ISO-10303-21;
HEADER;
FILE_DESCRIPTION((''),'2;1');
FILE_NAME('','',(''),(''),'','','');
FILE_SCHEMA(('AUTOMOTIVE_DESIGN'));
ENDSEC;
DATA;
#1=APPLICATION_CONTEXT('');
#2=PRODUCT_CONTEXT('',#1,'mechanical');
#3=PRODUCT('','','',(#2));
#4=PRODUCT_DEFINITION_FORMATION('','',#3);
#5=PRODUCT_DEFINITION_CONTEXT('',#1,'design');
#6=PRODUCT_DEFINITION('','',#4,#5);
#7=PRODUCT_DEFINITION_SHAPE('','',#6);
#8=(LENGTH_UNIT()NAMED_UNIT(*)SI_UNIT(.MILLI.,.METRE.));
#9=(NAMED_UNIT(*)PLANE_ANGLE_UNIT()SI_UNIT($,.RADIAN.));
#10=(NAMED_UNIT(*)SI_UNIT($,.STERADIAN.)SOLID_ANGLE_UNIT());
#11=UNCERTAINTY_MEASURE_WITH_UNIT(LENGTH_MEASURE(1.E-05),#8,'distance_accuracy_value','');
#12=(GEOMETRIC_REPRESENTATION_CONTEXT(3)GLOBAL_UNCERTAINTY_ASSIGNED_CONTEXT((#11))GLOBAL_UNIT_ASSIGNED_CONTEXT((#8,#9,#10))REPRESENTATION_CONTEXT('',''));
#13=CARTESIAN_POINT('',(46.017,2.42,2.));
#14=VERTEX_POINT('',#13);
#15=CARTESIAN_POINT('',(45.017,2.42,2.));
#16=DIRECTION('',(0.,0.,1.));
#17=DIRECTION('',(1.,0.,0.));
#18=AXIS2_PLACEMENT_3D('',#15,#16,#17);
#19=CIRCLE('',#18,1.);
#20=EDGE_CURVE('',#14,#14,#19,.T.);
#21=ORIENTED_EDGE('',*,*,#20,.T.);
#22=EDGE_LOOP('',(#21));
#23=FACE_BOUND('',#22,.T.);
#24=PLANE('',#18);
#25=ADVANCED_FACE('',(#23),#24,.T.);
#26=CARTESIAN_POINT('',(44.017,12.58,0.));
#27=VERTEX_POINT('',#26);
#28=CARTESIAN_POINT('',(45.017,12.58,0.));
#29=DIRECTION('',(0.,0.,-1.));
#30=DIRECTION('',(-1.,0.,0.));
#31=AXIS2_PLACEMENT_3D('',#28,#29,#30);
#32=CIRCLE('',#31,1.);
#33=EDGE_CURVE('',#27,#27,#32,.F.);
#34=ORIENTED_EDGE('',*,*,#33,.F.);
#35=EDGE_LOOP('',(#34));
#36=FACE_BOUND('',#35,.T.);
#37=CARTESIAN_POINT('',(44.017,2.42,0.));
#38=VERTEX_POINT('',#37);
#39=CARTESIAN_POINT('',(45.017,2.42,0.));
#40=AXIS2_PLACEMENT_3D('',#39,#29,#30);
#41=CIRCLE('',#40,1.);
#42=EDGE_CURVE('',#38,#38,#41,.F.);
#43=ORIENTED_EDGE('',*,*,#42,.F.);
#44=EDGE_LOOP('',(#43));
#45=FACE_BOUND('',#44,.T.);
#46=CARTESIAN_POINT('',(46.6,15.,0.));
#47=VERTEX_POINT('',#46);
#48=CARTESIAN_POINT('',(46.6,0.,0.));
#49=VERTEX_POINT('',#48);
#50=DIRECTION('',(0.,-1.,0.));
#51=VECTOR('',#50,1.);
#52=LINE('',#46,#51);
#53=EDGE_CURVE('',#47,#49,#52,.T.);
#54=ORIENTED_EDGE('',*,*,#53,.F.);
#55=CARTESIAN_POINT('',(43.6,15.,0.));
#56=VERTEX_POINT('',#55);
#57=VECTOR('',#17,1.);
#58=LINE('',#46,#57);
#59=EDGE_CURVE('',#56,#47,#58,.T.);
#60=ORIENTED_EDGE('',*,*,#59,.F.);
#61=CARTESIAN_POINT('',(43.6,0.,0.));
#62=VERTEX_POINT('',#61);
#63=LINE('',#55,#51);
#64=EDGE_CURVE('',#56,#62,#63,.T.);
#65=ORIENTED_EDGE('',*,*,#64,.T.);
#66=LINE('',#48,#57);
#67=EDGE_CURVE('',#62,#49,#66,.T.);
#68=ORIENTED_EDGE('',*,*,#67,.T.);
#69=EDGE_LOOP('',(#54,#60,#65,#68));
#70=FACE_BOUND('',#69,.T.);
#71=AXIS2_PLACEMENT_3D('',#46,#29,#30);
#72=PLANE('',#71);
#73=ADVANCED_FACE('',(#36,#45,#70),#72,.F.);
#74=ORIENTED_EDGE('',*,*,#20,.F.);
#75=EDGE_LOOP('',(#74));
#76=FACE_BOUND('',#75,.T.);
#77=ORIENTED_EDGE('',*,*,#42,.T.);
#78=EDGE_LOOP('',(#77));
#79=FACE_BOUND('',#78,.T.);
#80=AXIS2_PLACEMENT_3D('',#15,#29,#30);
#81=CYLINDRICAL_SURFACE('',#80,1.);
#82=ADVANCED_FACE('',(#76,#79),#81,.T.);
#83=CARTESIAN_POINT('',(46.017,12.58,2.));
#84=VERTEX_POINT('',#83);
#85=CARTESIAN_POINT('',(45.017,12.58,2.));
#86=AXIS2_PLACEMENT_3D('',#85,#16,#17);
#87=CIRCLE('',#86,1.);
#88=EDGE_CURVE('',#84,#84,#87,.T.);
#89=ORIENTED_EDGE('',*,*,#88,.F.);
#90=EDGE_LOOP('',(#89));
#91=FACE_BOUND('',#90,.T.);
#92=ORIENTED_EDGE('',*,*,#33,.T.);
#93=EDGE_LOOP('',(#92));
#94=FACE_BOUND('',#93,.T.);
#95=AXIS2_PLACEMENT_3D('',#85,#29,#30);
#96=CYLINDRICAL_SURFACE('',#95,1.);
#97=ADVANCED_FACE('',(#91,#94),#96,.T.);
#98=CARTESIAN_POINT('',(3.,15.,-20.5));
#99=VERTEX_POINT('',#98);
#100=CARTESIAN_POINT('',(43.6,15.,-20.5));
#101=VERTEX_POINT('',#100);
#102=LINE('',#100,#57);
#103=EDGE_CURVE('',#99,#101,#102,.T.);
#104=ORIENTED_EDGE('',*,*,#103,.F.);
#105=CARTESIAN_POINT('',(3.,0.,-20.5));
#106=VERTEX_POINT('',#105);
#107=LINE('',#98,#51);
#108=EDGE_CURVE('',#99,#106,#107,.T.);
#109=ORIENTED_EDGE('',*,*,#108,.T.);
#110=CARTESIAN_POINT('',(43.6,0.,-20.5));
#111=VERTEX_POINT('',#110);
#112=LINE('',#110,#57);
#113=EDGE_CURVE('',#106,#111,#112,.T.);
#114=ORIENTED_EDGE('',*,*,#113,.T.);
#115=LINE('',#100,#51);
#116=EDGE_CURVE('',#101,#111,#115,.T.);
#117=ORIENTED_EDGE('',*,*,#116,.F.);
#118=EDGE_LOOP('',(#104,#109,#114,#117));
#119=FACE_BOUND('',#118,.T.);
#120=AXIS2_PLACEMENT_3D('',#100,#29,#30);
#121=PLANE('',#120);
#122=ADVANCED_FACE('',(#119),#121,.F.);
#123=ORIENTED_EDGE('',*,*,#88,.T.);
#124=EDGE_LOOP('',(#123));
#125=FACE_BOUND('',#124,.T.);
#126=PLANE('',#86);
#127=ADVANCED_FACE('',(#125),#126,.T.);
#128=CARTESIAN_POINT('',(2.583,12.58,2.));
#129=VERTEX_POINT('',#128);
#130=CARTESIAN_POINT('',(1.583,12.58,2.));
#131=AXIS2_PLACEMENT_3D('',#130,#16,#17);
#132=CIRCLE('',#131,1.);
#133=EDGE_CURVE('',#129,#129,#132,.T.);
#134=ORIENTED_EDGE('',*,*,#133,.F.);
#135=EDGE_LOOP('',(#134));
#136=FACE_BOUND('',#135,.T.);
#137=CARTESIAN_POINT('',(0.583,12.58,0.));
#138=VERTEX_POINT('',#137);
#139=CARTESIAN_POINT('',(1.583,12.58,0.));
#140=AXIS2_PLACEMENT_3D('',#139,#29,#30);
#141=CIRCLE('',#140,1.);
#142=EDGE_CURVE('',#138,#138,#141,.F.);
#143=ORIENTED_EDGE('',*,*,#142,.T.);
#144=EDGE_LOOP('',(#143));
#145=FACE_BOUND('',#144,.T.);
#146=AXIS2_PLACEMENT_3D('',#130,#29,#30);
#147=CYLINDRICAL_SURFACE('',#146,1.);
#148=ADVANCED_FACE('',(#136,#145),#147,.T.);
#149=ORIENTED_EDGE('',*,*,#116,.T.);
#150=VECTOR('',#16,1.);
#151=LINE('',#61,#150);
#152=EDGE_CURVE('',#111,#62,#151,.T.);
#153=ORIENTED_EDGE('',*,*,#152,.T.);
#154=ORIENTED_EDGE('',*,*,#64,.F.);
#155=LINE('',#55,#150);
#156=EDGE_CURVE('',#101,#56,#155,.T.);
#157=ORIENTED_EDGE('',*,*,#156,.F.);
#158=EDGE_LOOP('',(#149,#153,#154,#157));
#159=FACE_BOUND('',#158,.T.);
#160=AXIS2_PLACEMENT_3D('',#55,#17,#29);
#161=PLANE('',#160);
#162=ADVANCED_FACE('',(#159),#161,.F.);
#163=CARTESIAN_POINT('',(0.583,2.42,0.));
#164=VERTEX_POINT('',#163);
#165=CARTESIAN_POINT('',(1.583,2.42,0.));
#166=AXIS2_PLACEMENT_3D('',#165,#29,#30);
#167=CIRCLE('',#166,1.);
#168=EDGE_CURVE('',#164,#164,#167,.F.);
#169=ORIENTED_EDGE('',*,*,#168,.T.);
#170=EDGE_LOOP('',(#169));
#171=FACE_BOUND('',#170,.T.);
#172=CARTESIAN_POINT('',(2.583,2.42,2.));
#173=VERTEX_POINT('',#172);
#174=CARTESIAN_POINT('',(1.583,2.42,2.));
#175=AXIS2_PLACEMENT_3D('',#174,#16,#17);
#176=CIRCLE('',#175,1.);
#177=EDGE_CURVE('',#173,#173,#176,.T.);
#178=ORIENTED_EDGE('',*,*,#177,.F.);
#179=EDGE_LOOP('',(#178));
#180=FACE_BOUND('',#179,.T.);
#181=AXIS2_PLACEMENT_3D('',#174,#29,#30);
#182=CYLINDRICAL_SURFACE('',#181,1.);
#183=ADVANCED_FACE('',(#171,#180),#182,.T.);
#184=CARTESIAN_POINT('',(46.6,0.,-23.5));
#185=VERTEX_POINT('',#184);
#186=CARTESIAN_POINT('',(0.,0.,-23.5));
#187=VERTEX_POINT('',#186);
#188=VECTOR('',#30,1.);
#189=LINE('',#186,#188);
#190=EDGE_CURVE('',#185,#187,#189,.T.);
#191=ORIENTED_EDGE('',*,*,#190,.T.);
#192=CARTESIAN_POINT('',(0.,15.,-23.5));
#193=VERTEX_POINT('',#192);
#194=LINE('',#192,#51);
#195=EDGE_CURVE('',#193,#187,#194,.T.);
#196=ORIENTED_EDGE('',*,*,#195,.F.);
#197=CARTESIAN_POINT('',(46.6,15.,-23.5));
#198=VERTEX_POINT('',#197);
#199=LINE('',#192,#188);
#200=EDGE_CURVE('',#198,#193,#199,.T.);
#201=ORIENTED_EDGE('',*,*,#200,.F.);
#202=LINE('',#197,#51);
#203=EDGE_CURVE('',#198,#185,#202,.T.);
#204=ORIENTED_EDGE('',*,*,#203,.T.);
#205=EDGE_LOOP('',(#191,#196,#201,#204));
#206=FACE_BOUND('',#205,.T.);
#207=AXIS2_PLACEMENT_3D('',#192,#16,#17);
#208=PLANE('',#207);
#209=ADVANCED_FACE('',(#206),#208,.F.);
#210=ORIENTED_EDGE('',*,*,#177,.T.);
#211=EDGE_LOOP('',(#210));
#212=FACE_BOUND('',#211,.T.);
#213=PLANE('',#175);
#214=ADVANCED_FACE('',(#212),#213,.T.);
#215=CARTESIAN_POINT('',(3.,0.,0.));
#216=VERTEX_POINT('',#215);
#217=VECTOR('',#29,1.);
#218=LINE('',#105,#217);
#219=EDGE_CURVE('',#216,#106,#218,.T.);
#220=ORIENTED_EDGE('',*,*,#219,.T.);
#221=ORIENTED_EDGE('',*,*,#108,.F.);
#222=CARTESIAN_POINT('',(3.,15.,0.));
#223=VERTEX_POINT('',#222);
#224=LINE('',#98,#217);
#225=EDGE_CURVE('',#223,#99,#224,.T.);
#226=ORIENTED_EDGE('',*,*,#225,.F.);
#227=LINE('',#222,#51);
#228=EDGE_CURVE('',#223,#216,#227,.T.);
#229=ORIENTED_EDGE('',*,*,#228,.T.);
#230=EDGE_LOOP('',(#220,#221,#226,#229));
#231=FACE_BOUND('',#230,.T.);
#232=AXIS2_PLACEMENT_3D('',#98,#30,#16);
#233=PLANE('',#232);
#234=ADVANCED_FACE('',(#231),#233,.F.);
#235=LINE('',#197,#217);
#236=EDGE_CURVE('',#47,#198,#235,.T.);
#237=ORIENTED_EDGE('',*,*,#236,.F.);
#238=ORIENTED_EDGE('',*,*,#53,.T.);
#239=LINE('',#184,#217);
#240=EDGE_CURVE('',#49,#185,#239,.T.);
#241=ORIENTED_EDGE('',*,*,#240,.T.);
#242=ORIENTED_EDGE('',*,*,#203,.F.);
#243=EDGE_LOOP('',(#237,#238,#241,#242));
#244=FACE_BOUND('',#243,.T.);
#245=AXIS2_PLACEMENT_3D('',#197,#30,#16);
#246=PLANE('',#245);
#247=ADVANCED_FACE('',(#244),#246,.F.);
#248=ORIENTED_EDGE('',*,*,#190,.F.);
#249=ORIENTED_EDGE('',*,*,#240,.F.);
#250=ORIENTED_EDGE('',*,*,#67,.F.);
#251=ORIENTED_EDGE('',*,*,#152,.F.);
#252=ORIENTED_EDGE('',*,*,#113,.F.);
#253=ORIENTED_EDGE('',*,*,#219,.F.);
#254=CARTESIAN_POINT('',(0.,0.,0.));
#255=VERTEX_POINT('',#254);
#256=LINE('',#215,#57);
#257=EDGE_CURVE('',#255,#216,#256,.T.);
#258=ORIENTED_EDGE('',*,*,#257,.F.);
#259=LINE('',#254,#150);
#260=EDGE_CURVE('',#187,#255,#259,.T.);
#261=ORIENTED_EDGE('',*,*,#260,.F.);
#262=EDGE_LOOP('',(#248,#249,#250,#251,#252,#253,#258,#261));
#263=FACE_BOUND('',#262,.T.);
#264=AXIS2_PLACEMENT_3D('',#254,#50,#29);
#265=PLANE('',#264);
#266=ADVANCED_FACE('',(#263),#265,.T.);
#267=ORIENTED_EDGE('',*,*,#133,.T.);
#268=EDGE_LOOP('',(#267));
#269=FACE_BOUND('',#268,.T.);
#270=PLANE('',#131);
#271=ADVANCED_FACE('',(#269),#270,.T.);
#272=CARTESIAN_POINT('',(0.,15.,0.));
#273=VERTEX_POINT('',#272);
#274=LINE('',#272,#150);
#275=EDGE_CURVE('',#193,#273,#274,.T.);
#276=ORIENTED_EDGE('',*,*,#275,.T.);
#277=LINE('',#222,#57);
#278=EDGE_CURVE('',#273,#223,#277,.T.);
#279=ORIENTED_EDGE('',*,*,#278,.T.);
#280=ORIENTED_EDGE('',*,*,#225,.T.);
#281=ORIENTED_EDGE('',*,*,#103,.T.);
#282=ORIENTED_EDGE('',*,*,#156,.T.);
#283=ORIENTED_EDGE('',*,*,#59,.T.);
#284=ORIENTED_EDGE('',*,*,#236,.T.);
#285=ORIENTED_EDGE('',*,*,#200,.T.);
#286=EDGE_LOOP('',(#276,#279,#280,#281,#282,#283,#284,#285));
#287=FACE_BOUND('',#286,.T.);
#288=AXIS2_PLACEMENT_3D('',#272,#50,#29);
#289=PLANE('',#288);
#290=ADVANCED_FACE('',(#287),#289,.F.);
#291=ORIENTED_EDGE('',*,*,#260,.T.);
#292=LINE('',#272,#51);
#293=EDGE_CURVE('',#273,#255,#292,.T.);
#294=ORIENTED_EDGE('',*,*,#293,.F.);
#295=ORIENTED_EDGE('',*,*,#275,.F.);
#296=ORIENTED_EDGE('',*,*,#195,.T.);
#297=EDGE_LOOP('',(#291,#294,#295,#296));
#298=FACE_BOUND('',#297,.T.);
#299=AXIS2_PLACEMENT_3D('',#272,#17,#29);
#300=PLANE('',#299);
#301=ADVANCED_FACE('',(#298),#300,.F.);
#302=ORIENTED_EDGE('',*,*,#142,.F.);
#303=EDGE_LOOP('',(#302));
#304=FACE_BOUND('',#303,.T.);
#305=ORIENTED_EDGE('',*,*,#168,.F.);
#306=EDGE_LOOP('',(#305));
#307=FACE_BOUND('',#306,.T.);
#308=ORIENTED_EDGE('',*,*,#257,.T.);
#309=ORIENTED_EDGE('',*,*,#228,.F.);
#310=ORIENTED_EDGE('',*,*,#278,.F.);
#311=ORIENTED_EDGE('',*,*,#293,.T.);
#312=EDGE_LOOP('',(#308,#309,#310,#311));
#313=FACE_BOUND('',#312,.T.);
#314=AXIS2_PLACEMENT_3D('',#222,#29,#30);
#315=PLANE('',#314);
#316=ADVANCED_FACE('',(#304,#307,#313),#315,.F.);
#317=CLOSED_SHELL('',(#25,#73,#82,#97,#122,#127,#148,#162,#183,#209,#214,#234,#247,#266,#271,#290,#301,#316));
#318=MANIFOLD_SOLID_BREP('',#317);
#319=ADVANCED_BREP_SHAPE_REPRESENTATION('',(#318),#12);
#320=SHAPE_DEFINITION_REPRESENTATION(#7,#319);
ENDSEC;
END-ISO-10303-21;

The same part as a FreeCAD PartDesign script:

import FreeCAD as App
import Part
import Sketcher
from FreeCAD import Vector

doc = App.newDocument("Part")
body = doc.addObject("PartDesign::Body", "Body")

sketch1 = body.newObject("Sketcher::SketchObject", "Sketch")
sketch1.AttachmentSupport = (doc.getObject("XZ_Plane"), [""])
sketch1.MapMode = "FlatFace"
sketch1.addGeometry([
    Part.LineSegment(Vector(0, -23.5, 0), Vector(0, 0, 0)),
    Part.LineSegment(Vector(0, 0, 0), Vector(3, 0, 0)),
    Part.LineSegment(Vector(3, 0, 0), Vector(3, -20.5, 0)),
    Part.LineSegment(Vector(3, -20.5, 0), Vector(43.6, -20.5, 0)),
    Part.LineSegment(Vector(43.6, -20.5, 0), Vector(43.6, 0, 0)),
    Part.LineSegment(Vector(43.6, 0, 0), Vector(46.6, 0, 0)),
    Part.LineSegment(Vector(46.6, 0, 0), Vector(46.6, -23.5, 0)),
    Part.LineSegment(Vector(46.6, -23.5, 0), Vector(0, -23.5, 0)),
], False)
sketch1.addConstraint([
    Sketcher.Constraint("Coincident", 0, 2, 1, 1),
    Sketcher.Constraint("Coincident", 1, 2, 2, 1),
    Sketcher.Constraint("Coincident", 2, 2, 3, 1),
    Sketcher.Constraint("Coincident", 3, 2, 4, 1),
    Sketcher.Constraint("Coincident", 4, 2, 5, 1),
    Sketcher.Constraint("Coincident", 5, 2, 6, 1),
    Sketcher.Constraint("Coincident", 6, 2, 7, 1),
    Sketcher.Constraint("Coincident", 7, 2, 0, 1),
    Sketcher.Constraint("Vertical", 0),
    Sketcher.Constraint("Horizontal", 1),
    Sketcher.Constraint("Vertical", 2),
    Sketcher.Constraint("Horizontal", 3),
    Sketcher.Constraint("Vertical", 4),
    Sketcher.Constraint("Horizontal", 5),
    Sketcher.Constraint("Vertical", 6),
    Sketcher.Constraint("Horizontal", 7),
    Sketcher.Constraint("Coincident", 0, 2, -1, 1),
    Sketcher.Constraint("PointOnObject", 4, 2, -1),
    Sketcher.Constraint("Equal", 1, 5),
    Sketcher.Constraint("DistanceX", 1, 1, 1, 2, 3.0),
    Sketcher.Constraint("DistanceX", 3, 1, 3, 2, 40.6),
    Sketcher.Constraint("DistanceY", 0, 1, 0, 2, 23.5),
    Sketcher.Constraint("DistanceY", 2, 2, 2, 1, 20.5),
])
pad1 = body.newObject("PartDesign::Pad", "Pad")
pad1.Profile = sketch1
pad1.Length = 15
pad1.Reversed = True

sketch2 = body.newObject("Sketcher::SketchObject", "Sketch001")
sketch2.AttachmentSupport = (doc.getObject("XY_Plane"), [""])
sketch2.MapMode = "FlatFace"
sketch2.addGeometry([
    Part.Circle(Vector(1.583, 2.42, 0), Vector(0, 0, 1), 1),
    Part.Circle(Vector(1.583, 12.58, 0), Vector(0, 0, 1), 1),
    Part.Circle(Vector(45.017, 12.58, 0), Vector(0, 0, 1), 1),
    Part.Circle(Vector(45.017, 2.42, 0), Vector(0, 0, 1), 1),
], False)
sketch2.addConstraint([
    Sketcher.Constraint("Equal", 0, 1),
    Sketcher.Constraint("Equal", 1, 2),
    Sketcher.Constraint("Equal", 2, 3),
    Sketcher.Constraint("Horizontal", 1, 3, 2, 3),
    Sketcher.Constraint("Horizontal", 0, 3, 3, 3),
    Sketcher.Constraint("Vertical", 0, 3, 1, 3),
    Sketcher.Constraint("Vertical", 2, 3, 3, 3),
    Sketcher.Constraint("Diameter", 0, 2.0),
    Sketcher.Constraint("DistanceY", -1, 1, 0, 3, 2.42),
    Sketcher.Constraint("DistanceY", -1, 1, 1, 3, 12.58),
    Sketcher.Constraint("DistanceX", -1, 1, 0, 3, 1.583),
    Sketcher.Constraint("DistanceX", -1, 1, 2, 3, 45.017),
])
pad2 = body.newObject("PartDesign::Pad", "Pad001")
pad2.Profile = sketch2
pad2.Length = 2

doc.recompute()
